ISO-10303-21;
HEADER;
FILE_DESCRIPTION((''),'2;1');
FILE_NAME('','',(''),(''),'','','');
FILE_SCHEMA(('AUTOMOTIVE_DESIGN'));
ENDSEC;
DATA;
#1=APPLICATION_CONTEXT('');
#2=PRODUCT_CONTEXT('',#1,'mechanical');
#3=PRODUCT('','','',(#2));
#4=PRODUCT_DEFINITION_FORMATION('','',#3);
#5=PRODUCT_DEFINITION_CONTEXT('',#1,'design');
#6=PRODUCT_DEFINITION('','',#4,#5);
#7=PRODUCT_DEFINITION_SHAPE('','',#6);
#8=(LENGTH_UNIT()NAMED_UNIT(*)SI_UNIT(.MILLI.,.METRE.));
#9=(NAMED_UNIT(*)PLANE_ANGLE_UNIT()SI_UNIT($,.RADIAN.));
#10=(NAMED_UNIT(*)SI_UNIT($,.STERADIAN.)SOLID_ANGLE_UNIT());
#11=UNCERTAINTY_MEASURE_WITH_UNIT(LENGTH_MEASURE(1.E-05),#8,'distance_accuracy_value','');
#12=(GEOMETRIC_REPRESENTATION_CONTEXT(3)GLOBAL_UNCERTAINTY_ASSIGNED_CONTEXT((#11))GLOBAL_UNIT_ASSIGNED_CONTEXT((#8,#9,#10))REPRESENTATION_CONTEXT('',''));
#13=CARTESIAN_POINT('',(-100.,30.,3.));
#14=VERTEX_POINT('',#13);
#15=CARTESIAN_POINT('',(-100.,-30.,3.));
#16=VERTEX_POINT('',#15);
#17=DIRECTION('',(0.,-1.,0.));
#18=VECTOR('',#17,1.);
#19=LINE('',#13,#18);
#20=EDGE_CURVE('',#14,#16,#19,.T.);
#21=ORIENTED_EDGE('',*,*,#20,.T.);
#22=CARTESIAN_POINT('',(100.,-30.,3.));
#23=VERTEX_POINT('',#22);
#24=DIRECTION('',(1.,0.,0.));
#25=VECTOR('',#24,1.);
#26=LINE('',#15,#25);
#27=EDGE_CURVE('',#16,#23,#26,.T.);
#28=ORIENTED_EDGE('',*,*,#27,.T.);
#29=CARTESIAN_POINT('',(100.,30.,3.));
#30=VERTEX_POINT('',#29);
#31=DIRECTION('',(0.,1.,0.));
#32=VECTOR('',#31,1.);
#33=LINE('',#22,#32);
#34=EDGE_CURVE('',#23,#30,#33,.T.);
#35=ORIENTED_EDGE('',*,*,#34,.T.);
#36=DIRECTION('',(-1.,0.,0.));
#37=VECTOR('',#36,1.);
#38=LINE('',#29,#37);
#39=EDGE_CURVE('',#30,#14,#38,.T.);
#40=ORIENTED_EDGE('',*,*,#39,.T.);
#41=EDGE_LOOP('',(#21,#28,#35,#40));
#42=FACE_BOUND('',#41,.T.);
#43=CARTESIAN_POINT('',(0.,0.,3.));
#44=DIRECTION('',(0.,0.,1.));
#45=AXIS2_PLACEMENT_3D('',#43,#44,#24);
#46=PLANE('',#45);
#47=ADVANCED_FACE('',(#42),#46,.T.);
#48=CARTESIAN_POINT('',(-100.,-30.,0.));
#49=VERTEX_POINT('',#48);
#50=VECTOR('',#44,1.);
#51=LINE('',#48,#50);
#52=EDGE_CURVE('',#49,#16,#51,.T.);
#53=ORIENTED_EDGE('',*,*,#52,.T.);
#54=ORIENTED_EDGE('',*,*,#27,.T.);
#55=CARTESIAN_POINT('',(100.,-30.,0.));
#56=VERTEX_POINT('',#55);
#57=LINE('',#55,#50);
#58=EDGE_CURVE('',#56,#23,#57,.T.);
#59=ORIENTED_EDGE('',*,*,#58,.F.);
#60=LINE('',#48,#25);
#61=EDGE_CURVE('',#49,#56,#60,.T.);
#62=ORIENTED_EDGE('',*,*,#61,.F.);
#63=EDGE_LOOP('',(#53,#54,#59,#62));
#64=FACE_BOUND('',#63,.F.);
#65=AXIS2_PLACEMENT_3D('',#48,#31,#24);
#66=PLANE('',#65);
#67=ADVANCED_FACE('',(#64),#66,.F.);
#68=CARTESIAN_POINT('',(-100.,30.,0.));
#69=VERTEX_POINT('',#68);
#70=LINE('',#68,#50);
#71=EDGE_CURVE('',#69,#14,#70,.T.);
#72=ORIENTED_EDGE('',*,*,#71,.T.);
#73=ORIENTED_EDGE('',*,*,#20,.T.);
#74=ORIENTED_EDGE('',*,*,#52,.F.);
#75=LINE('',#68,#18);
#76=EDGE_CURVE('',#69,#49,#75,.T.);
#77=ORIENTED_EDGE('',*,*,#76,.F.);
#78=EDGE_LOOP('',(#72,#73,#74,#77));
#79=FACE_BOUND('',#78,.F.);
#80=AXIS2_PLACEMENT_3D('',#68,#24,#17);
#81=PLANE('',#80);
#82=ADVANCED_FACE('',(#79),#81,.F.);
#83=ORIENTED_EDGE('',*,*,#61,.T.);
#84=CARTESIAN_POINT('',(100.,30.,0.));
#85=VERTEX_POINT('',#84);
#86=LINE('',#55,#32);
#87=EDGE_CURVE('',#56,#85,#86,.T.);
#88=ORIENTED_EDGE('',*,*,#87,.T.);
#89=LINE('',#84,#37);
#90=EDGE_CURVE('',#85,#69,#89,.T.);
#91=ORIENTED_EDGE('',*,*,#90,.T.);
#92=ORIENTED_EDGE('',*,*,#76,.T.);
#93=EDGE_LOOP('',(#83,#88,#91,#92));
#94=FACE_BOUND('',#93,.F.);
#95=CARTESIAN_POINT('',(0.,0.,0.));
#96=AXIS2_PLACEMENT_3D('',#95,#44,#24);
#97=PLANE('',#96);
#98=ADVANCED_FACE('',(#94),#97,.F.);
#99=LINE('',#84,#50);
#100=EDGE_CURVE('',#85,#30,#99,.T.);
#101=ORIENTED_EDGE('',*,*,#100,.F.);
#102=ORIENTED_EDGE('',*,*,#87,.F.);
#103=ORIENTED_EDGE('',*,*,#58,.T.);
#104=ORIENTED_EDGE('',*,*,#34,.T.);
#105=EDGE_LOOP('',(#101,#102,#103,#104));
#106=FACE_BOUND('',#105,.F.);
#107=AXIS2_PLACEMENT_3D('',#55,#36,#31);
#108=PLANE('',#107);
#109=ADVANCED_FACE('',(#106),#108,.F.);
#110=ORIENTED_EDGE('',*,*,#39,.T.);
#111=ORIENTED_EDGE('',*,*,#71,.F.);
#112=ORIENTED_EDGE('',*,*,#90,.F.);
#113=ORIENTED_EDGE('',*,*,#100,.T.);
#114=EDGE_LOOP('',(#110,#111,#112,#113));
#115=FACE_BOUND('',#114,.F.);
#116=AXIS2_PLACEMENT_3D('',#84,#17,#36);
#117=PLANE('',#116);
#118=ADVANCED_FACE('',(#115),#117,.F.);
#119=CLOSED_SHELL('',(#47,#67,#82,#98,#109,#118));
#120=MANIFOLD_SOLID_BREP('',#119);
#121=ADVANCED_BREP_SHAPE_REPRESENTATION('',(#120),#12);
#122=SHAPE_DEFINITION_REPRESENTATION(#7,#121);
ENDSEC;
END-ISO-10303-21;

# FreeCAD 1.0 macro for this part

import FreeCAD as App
import Part
import Sketcher
Q = App.Units.Quantity

doc = App.newDocument("Part")
params = doc.addObject("Spreadsheet::Sheet", "Params")
for row, (alias, value) in enumerate([
    ("sketch1_width", "200 mm"),
    ("sketch1_height", "60 mm"),
    ("pad1_length", "3 mm"),
], start=1):
    params.set(f"A{row}", alias)
    params.set(f"B{row}", "=" + value)
    params.setAlias(f"B{row}", alias)

body = doc.addObject("PartDesign::Body", "Body")

# Sketch on XY plane
sketch1 = doc.addObject("Sketcher::SketchObject", "Sketch")
body.addObject(sketch1)
sketch1.AttachmentSupport = (doc.XY_Plane, [""])
sketch1.MapMode = "FlatFace"
sketch1.addGeometry(Part.LineSegment(App.Vector(-100, 30, 0), App.Vector(-100, -30, 0)), False)
sketch1.addGeometry(Part.LineSegment(App.Vector(-100, -30, 0), App.Vector(100, -30, 0)), False)
sketch1.addGeometry(Part.LineSegment(App.Vector(100, -30, 0), App.Vector(100, 30, 0)), False)
sketch1.addGeometry(Part.LineSegment(App.Vector(100, 30, 0), App.Vector(-100, 30, 0)), False)
sketch1.addConstraint(Sketcher.Constraint("Coincident", 0, 2, 1, 1))
sketch1.addConstraint(Sketcher.Constraint("Coincident", 1, 2, 2, 1))
sketch1.addConstraint(Sketcher.Constraint("Coincident", 2, 2, 3, 1))
sketch1.addConstraint(Sketcher.Constraint("Coincident", 3, 2, 0, 1))
sketch1.addConstraint(Sketcher.Constraint("Vertical", 0))
sketch1.addConstraint(Sketcher.Constraint("Horizontal", 1))
sketch1.addConstraint(Sketcher.Constraint("Vertical", 2))
sketch1.addConstraint(Sketcher.Constraint("Horizontal", 3))
sketch1.addConstraint(Sketcher.Constraint("Symmetric", 0, 2, 2, 2, -1, 1))
sketch1.addConstraint(Sketcher.Constraint("DistanceX", 1, 1, 1, 2, Q("200 mm")))
sketch1.addConstraint(Sketcher.Constraint("DistanceY", 0, 2, 0, 1, Q("60 mm")))
sketch1.setExpression("Constraints[9]", "Params.sketch1_width")
sketch1.setExpression("Constraints[10]", "Params.sketch1_height")
pad1 = doc.addObject("PartDesign::Pad", "Pad")
body.addObject(pad1)
pad1.Profile = sketch1
pad1.setExpression("Length", "Params.pad1_length")

doc.recompute()
